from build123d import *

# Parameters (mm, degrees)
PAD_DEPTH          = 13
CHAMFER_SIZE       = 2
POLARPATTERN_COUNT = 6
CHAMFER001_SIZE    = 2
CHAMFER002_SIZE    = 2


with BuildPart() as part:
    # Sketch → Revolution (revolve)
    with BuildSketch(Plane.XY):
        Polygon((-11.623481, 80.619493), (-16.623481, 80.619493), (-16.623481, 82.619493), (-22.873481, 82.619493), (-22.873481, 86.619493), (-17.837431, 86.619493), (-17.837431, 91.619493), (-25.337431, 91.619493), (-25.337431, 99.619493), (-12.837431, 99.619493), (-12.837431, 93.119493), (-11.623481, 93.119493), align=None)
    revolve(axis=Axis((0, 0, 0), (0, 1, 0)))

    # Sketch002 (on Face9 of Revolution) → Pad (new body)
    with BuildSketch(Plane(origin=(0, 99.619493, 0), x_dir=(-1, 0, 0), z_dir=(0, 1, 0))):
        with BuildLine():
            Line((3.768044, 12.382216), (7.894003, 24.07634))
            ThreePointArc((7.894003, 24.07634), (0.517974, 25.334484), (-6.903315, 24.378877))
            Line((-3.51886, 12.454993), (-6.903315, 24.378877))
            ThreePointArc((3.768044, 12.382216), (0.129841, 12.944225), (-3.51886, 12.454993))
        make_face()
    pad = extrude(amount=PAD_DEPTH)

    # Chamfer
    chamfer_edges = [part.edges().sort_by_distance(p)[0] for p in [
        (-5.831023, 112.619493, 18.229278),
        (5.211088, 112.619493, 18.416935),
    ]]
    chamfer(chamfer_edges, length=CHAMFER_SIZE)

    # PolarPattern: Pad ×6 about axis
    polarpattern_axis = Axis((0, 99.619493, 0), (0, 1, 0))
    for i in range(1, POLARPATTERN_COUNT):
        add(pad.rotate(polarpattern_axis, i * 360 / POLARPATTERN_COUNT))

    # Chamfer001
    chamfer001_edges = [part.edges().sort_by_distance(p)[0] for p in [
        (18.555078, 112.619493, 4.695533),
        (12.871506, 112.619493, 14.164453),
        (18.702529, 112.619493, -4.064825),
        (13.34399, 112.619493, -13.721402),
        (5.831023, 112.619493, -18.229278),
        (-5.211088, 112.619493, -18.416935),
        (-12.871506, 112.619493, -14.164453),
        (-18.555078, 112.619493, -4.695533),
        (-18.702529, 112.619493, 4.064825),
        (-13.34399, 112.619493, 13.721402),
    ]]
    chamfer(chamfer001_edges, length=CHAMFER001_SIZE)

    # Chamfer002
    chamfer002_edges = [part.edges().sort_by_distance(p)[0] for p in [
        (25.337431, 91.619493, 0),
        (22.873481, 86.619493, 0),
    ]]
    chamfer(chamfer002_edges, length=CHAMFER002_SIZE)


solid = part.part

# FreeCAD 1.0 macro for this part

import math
import FreeCAD as App
import Part
import Sketcher
from FreeCAD import Vector
Q = App.Units.Quantity


def edges_at(feature, points):
    """Names of the edges that pass closest to the given points."""
    edges = feature.Shape.Edges
    near = lambda p: min(range(len(edges)), key=lambda i: edges[i].distToShape(Part.Vertex(*p))[0])
    return sorted({f"Edge{near(p) + 1}" for p in points})


def add_polygon(sketch, points):
    """Adds a closed chain of lines whose ends are joined by coincident constraints."""
    first, n = sketch.GeometryCount, len(points)
    for a, b in zip(points, points[1:] + points[:1]):
        sketch.addGeometry(Part.LineSegment(App.Vector(*a, 0), App.Vector(*b, 0)), False)
    for i in range(n):
        sketch.addConstraint(Sketcher.Constraint("Coincident", first + i, 2, first + (i + 1) % n, 1))

doc = App.newDocument("Part")
body = doc.addObject("PartDesign::Body", "Body")

sketch1 = body.newObject("Sketcher::SketchObject", "Sketch")
sketch1.AttachmentSupport = (doc.getObject("XY_Plane"), [""])
sketch1.MapMode = "FlatFace"
add_polygon(sketch1, [(-16.6, 80.6), (-11.6, 80.6), (-11.6, 93.1), (-12.8, 93.1), (-12.8, 99.6), (-25.3, 99.6), (-25.3, 91.6), (-17.8, 91.6), (-17.8, 86.6), (-22.9, 86.6), (-22.9, 82.6), (-16.6, 82.6)])
sketch1.addConstraint([
    Sketcher.Constraint("Horizontal", 0),
    Sketcher.Constraint("Vertical", 1),
    Sketcher.Constraint("Horizontal", 2),
    Sketcher.Constraint("Vertical", 3),
    Sketcher.Constraint("Horizontal", 4),
    Sketcher.Constraint("Vertical", 5),
    Sketcher.Constraint("Horizontal", 6),
    Sketcher.Constraint("Vertical", 7),
    Sketcher.Constraint("Horizontal", 8),
    Sketcher.Constraint("Vertical", 9),
    Sketcher.Constraint("Horizontal", 10),
    Sketcher.Constraint("Vertical", 11),
    Sketcher.Constraint("Equal", 4, 1),
    Sketcher.Constraint("Equal", 0, 7),
    Sketcher.Constraint("DistanceX", 0, 1, 0, 2, Q("5 mm")),
    Sketcher.Constraint("DistanceY", 5, 2, 5, 1, Q("8 mm")),
    Sketcher.Constraint("DistanceY", 9, 2, 9, 1, Q("4 mm")),
    Sketcher.Constraint("DistanceY", 11, 2, 11, 1, Q("2 mm")),
    Sketcher.Constraint("DistanceX", 4, 2, 4, 1, Q("12.5 mm")),
    Sketcher.Constraint("DistanceX", 6, 1, 6, 2, Q("7.5 mm")),
    Sketcher.Constraint("DistanceX", 10, 1, 10, 2, Q("6.25 mm")),
    Sketcher.Constraint("DistanceX", 2, 2, 2, 1, Q("1.21395 mm")),
    Sketcher.Constraint("DistanceX", 0, 2, -1, 1, Q("11.623481 mm")),
    Sketcher.Constraint("DistanceY", -1, 1, 0, 2, Q("80.619493 mm")),
])
revolution = body.newObject("PartDesign::Revolution", "Revolution")
revolution.Profile = sketch1
revolution.ReferenceAxis = (sketch1, ["V_Axis"])
revolution.Angle = 360

sketch2 = body.newObject("Sketcher::SketchObject", "Sketch001")
sketch2.AttachmentSupport = (doc.getObject("XZ_Plane"), [""])
sketch2.MapMode = "FlatFace"
sketch2.AttachmentOffset = App.Placement(Vector(0, 0, -99.619493), App.Rotation())
sketch2.addGeometry([
    Part.LineSegment(Vector(-4, 12, 0), Vector(-8, 24, 0)),
    Part.ArcOfCircle(Part.Circle(Vector(0, 0, 0), Vector(0, 0, 1), 25), math.radians(74), math.radians(108)),
    Part.LineSegment(Vector(7, 24, 0), Vector(4, 12, 0)),
    Part.ArcOfCircle(Part.Circle(Vector(0, 0, 0), Vector(0, 0, 1), 13), math.radians(74), math.radians(107)),
], False)
sketch2.addConstraint([
    Sketcher.Constraint("Coincident", 0, 2, 1, 2),
    Sketcher.Constraint("Coincident", 1, 1, 2, 1),
    Sketcher.Constraint("Coincident", 2, 2, 3, 1),
    Sketcher.Constraint("Coincident", 3, 2, 0, 1),
    Sketcher.Constraint("Vertical", 1, 3, 3, 3),
    Sketcher.Constraint("Radius", 3, Q("12.89114 mm")),
    Sketcher.Constraint("Radius", 1, Q("25.286053 mm")),
    Sketcher.Constraint("Distance", 2, Q("12.3949 mm")),
    Sketcher.Constraint("DistanceX", 1, 3, -1, 1, Q("0.001099 mm")),
    Sketcher.Constraint("DistanceY", 1, 3, 3, 2, Q("12.328502 mm")),
    Sketcher.Constraint("Distance", 0, Q("12.400648 mm")),
    Sketcher.Constraint("DistanceY", -1, 1, 0, 2, Q("24.07634 mm")),
    Sketcher.Constraint("DistanceX", -1, 1, 2, 2, Q("3.51886 mm")),
    Sketcher.Constraint("DistanceY", 3, 3, 1, 1, Q("24.32515 mm")),
])
pad1 = body.newObject("PartDesign::Pad", "Pad")
pad1.Profile = sketch2
pad1.Length = 13
pad1.Reversed = True
doc.recompute()

chamfer = body.newObject("PartDesign::Chamfer", "Chamfer")
chamfer.Base = (pad1, edges_at(pad1, [(-5.831, 112.619, 18.229), (5.211, 112.619, 18.417)]))
chamfer.Size = 2
doc.recompute()

polarpattern = body.newObject("PartDesign::PolarPattern", "PolarPattern")
polarpattern.Originals = [pad1]
polarpattern.Axis = (doc.getObject("Y_Axis"), [""])
polarpattern.Angle = 360
polarpattern.Occurrences = 6
body.Tip = polarpattern
doc.recompute()

chamfer2 = body.newObject("PartDesign::Chamfer", "Chamfer001")
chamfer2.Base = (polarpattern, edges_at(polarpattern, [
    (18.555, 112.619, 4.696),
    (12.872, 112.619, 14.164),
    (18.703, 112.619, -4.065),
    (13.344, 112.619, -13.721),
    (5.831, 112.619, -18.229),
    (-5.211, 112.619, -18.417),
    (-12.872, 112.619, -14.164),
    (-18.555, 112.619, -4.696),
    (-18.703, 112.619, 4.065),
    (-13.344, 112.619, 13.721),
]))
chamfer2.Size = 2
doc.recompute()

chamfer3 = body.newObject("PartDesign::Chamfer", "Chamfer002")
chamfer3.Base = (chamfer2, edges_at(chamfer2, [(25.337, 91.619, 0), (22.873, 86.619, 0)]))
chamfer3.Size = 2

doc.recompute()
